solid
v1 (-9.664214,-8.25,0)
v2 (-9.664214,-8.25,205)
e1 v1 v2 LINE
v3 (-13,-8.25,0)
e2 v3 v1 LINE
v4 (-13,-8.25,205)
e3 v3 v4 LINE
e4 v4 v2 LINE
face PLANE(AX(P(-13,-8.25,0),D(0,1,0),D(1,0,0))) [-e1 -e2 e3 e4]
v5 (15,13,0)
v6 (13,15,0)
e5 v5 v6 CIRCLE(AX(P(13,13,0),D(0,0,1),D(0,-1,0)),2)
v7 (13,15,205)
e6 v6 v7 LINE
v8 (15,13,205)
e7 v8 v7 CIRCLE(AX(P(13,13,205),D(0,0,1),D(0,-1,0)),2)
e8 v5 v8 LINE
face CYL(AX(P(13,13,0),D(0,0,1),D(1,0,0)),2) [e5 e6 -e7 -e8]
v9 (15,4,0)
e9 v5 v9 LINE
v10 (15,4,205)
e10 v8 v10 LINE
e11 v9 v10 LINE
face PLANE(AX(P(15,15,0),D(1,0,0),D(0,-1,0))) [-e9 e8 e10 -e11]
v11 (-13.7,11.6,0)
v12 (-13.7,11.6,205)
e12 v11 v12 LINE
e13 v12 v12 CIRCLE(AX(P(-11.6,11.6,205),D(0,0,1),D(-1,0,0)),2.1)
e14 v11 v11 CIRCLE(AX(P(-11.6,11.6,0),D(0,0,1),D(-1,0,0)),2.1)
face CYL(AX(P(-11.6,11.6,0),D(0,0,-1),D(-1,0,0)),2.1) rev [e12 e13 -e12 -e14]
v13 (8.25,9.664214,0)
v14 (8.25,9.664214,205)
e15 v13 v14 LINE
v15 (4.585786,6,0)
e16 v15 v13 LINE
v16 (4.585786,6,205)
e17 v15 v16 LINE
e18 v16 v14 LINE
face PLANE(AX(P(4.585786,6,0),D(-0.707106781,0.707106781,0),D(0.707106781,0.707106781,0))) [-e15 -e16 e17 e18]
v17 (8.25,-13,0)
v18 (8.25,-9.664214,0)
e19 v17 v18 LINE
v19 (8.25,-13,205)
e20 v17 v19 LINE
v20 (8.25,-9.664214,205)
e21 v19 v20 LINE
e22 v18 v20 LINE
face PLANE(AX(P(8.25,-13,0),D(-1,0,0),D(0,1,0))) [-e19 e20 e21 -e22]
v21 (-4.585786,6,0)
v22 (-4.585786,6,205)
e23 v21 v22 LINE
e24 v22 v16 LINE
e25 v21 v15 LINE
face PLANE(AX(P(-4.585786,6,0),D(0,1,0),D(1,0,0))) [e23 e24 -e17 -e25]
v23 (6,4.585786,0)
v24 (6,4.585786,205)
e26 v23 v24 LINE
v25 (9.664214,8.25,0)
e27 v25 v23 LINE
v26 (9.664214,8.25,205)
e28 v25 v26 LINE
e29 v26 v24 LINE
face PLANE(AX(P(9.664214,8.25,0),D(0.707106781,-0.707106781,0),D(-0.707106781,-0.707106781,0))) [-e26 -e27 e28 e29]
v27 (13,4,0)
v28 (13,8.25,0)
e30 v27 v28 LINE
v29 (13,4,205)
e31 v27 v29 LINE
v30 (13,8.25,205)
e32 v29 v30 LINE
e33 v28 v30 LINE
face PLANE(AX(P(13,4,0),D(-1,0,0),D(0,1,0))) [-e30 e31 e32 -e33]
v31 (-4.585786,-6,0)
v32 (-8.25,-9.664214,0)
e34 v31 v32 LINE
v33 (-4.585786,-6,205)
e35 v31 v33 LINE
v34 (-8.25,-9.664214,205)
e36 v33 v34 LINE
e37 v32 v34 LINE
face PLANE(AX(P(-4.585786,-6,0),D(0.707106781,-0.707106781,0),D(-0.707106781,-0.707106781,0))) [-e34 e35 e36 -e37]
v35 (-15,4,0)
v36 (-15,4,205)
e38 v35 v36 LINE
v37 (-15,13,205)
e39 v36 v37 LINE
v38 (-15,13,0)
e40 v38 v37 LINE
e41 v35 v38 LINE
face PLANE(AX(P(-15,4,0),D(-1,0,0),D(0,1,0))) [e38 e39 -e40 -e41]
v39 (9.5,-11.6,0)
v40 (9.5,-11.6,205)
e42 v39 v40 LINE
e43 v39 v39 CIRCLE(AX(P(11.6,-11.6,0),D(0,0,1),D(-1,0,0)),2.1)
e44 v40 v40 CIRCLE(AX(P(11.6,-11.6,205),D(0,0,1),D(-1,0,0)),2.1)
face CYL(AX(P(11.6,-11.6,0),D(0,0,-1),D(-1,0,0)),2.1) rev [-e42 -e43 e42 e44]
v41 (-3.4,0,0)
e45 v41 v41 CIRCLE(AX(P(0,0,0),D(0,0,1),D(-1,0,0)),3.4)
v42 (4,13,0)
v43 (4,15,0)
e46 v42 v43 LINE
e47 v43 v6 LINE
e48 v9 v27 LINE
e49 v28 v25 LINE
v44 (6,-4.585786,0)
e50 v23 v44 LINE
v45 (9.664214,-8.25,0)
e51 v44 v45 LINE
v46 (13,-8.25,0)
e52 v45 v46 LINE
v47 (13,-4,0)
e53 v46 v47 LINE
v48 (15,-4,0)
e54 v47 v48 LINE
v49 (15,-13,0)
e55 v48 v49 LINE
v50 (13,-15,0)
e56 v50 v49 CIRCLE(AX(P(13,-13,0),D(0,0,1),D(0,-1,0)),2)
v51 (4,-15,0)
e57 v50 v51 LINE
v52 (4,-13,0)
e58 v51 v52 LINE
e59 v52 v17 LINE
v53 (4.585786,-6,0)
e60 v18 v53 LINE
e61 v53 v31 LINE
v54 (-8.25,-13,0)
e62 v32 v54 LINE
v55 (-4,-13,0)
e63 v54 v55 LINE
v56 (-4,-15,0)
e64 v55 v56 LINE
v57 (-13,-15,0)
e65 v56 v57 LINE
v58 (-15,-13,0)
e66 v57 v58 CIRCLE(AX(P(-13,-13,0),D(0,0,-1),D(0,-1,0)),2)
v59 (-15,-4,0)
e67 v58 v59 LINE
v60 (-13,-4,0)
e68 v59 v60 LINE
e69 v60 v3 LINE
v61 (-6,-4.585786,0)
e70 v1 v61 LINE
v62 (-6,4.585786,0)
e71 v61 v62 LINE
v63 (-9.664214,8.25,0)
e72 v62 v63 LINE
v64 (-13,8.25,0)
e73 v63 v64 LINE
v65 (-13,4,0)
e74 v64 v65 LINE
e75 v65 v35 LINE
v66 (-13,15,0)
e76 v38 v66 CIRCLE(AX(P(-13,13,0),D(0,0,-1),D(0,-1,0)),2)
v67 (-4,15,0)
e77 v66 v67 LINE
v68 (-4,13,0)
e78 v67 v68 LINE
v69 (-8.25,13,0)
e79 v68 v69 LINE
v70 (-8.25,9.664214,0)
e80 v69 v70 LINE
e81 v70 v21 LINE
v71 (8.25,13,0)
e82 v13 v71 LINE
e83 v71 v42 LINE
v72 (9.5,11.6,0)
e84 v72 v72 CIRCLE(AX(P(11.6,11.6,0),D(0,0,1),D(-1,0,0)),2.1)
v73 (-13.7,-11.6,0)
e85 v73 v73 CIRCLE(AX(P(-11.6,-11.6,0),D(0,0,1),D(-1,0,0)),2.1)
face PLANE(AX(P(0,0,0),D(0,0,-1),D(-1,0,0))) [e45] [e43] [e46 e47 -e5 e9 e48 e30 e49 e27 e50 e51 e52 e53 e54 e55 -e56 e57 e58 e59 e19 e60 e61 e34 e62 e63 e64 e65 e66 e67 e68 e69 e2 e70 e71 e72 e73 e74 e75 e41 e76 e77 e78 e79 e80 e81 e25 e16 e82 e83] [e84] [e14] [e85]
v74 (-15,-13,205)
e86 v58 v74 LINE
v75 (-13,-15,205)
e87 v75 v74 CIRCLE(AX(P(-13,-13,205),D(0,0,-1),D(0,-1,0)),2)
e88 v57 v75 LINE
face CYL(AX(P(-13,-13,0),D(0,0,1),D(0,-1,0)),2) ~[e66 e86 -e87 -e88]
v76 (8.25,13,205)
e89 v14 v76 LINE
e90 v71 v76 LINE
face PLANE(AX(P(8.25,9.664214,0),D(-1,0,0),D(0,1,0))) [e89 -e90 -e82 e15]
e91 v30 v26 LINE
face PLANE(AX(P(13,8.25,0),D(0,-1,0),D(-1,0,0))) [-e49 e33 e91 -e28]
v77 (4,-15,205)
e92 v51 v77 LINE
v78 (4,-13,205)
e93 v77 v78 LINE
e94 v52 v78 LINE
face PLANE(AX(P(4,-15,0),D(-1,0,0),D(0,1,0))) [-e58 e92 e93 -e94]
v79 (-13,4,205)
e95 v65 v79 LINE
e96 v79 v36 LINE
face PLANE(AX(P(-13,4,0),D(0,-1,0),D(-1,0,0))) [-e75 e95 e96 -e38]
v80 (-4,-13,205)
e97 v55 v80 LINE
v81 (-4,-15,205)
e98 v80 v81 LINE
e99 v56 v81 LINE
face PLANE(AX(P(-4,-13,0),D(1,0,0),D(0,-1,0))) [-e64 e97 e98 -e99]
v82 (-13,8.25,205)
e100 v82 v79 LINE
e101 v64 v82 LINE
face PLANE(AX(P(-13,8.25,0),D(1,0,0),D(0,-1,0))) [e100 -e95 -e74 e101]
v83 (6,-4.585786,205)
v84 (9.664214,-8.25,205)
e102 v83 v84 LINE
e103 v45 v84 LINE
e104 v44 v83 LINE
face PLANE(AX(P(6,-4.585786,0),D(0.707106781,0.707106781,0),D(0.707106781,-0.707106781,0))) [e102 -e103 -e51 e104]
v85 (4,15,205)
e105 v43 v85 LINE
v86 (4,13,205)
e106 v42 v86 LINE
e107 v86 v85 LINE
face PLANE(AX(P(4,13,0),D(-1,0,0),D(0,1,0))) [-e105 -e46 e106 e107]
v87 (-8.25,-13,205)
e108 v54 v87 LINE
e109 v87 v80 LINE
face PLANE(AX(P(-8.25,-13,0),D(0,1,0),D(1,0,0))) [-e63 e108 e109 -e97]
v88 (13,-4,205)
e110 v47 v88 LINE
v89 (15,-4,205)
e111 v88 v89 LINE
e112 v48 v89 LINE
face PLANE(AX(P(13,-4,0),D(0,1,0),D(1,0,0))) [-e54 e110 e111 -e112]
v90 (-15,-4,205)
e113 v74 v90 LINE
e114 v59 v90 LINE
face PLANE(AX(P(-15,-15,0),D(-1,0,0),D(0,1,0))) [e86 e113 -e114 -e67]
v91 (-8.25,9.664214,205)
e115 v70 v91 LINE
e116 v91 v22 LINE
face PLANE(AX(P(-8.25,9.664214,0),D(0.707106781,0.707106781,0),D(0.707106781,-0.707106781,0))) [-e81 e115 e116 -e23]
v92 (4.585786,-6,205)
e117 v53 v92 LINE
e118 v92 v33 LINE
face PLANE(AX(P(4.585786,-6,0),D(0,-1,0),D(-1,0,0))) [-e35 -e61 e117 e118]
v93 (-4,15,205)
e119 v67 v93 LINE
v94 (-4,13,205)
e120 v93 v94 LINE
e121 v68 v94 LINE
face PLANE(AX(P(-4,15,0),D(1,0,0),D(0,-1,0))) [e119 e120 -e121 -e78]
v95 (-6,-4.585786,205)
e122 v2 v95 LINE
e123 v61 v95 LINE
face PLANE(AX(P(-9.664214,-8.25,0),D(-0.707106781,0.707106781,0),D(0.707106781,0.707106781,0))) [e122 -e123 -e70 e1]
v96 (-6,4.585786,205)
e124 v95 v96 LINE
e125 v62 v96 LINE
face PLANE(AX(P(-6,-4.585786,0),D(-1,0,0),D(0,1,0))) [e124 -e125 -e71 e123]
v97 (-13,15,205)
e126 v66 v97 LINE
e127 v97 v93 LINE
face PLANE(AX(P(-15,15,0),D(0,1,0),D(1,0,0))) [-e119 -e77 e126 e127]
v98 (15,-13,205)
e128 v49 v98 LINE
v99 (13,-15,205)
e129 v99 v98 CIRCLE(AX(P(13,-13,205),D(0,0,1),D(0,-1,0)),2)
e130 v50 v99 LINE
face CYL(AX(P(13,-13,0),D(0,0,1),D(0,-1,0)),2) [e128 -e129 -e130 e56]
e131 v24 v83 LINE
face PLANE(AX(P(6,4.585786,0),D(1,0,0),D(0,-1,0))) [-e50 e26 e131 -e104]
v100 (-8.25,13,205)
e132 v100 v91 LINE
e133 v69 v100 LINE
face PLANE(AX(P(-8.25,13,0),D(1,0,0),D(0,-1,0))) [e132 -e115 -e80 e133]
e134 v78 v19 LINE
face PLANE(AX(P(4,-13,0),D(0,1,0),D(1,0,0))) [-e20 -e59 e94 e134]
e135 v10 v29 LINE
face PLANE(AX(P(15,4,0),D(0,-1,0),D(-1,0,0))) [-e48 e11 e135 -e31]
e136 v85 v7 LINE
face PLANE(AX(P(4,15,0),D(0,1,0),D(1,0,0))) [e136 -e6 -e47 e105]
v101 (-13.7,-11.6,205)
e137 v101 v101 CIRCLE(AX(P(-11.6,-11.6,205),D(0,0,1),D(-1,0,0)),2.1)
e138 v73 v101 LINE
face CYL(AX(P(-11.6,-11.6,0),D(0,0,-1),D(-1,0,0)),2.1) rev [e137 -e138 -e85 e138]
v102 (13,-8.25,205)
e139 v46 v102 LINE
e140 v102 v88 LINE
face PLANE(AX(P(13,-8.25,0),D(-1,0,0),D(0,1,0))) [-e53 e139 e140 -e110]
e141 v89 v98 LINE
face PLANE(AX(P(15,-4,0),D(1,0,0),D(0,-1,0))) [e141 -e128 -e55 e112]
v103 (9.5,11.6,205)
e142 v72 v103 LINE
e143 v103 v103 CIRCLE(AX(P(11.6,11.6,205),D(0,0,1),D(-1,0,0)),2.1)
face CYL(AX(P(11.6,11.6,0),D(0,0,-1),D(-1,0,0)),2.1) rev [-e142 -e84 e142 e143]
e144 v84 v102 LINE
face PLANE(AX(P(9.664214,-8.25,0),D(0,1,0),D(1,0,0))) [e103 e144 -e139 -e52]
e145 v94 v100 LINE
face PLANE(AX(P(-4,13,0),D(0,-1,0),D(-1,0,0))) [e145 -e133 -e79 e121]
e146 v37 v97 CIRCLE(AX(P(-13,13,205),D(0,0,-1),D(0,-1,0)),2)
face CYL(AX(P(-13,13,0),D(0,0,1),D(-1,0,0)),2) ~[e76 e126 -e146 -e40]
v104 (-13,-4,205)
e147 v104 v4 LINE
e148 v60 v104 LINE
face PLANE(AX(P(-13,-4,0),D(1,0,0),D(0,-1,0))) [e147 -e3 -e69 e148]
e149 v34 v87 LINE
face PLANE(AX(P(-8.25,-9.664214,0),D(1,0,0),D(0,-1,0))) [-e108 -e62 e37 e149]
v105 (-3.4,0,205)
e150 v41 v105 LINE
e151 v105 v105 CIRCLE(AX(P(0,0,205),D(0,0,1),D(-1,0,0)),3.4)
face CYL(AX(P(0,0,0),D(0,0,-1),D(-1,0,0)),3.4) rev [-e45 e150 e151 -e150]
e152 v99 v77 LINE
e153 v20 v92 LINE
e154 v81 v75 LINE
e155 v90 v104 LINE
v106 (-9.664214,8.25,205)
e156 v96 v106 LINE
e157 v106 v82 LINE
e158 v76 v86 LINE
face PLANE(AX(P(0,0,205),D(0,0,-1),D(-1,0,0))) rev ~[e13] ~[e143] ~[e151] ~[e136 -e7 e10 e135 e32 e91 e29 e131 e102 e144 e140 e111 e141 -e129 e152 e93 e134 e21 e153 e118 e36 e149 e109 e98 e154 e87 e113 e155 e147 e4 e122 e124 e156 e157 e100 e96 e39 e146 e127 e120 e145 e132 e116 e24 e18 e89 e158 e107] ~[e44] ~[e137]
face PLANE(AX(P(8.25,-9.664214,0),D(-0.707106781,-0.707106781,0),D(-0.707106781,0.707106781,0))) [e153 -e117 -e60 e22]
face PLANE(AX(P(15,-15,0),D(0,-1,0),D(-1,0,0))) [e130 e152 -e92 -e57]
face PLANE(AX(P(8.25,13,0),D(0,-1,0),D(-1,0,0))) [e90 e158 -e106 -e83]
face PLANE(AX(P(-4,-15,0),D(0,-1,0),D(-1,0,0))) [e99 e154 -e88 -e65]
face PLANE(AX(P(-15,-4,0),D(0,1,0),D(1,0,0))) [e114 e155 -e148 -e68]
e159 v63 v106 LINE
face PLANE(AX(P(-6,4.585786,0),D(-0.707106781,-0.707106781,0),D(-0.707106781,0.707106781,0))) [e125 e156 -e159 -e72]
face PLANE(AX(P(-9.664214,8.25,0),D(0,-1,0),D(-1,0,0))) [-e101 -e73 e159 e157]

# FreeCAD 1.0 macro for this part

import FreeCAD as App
import Part
import Sketcher
from FreeCAD import Vector


def edges_at(feature, points):
    """Names of the edges that pass closest to the given points."""
    edges = feature.Shape.Edges
    near = lambda p: min(range(len(edges)), key=lambda i: edges[i].distToShape(Part.Vertex(*p))[0])
    return sorted({f"Edge{near(p) + 1}" for p in points})

doc = App.newDocument("Part")
body = doc.addObject("PartDesign::Body", "Body")

# Sketch on XY plane
sketch1 = body.newObject("Sketcher::SketchObject", "Sketch")
sketch1.AttachmentSupport = (doc.getObject("XY_Plane"), [""])
sketch1.MapMode = "FlatFace"
sketch1.addGeometry([
    Part.LineSegment(Vector(4, -15, 0), Vector(15, -15, 0)),  # 0
    Part.LineSegment(Vector(15, -15, 0), Vector(15, -4, 0)),  # 1
    Part.LineSegment(Vector(15, -4, 0), Vector(13, -4, 0)),  # 2
    Part.LineSegment(Vector(13, -4, 0), Vector(13, -8.2, 0)),  # 3
    Part.LineSegment(Vector(13, -8.2, 0), Vector(9.7, -8.2, 0)),  # 4
    Part.LineSegment(Vector(9.7, -8.2, 0), Vector(6, -4.6, 0)),  # 5
    Part.LineSegment(Vector(6, -4.6, 0), Vector(6, 4.6, 0)),  # 6
    Part.LineSegment(Vector(6, 4.6, 0), Vector(9.7, 8.2, 0)),  # 7
    Part.LineSegment(Vector(9.7, 8.2, 0), Vector(13, 8.2, 0)),  # 8
    Part.LineSegment(Vector(13, 8.2, 0), Vector(13, 4, 0)),  # 9
    Part.LineSegment(Vector(13, 4, 0), Vector(15, 4, 0)),  # 10
    Part.LineSegment(Vector(15, 4, 0), Vector(15, 15, 0)),  # 11
    Part.LineSegment(Vector(15, 15, 0), Vector(4, 15, 0)),  # 12
    Part.LineSegment(Vector(4, 15, 0), Vector(4, 13, 0)),  # 13
    Part.LineSegment(Vector(4, 13, 0), Vector(8.2, 13, 0)),  # 14
    Part.LineSegment(Vector(8.2, 13, 0), Vector(8.2, 9.7, 0)),  # 15
    Part.LineSegment(Vector(8.2, 9.7, 0), Vector(4.6, 6, 0)),  # 16
    Part.LineSegment(Vector(4.6, 6, 0), Vector(-4.6, 6, 0)),  # 17
    Part.LineSegment(Vector(-4.6, 6, 0), Vector(-8.2, 9.7, 0)),  # 18
    Part.LineSegment(Vector(-8.2, 9.7, 0), Vector(-8.2, 13, 0)),  # 19
    Part.LineSegment(Vector(-8.2, 13, 0), Vector(-4, 13, 0)),  # 20
    Part.LineSegment(Vector(-4, 13, 0), Vector(-4, 15, 0)),  # 21
    Part.LineSegment(Vector(-4, 15, 0), Vector(-15, 15, 0)),  # 22
    Part.LineSegment(Vector(-15, 15, 0), Vector(-15, 4, 0)),  # 23
    Part.LineSegment(Vector(-15, 4, 0), Vector(-13, 4, 0)),  # 24
    Part.LineSegment(Vector(-13, 4, 0), Vector(-13, 8.2, 0)),  # 25
    Part.LineSegment(Vector(-13, 8.2, 0), Vector(-9.7, 8.2, 0)),  # 26
    Part.LineSegment(Vector(-9.7, 8.2, 0), Vector(-6, 4.6, 0)),  # 27
    Part.LineSegment(Vector(-6, 4.6, 0), Vector(-6, -4.6, 0)),  # 28
    Part.LineSegment(Vector(-6, -4.6, 0), Vector(-9.7, -8.2, 0)),  # 29
    Part.LineSegment(Vector(-9.7, -8.2, 0), Vector(-13, -8.2, 0)),  # 30
    Part.LineSegment(Vector(-13, -8.2, 0), Vector(-13, -4, 0)),  # 31
    Part.LineSegment(Vector(-13, -4, 0), Vector(-15, -4, 0)),  # 32
    Part.LineSegment(Vector(-15, -4, 0), Vector(-15, -15, 0)),  # 33
    Part.LineSegment(Vector(-15, -15, 0), Vector(-4, -15, 0)),  # 34
    Part.LineSegment(Vector(-4, -15, 0), Vector(-4, -13, 0)),  # 35
    Part.LineSegment(Vector(-4, -13, 0), Vector(-8.2, -13, 0)),  # 36
    Part.LineSegment(Vector(-8.2, -13, 0), Vector(-8.2, -9.7, 0)),  # 37
    Part.LineSegment(Vector(-8.2, -9.7, 0), Vector(-4.6, -6, 0)),  # 38
    Part.LineSegment(Vector(-4.6, -6, 0), Vector(4.6, -6, 0)),  # 39
    Part.LineSegment(Vector(4.6, -6, 0), Vector(8.2, -9.7, 0)),  # 40
    Part.LineSegment(Vector(8.2, -9.7, 0), Vector(8.2, -13, 0)),  # 41
    Part.LineSegment(Vector(8.2, -13, 0), Vector(4, -13, 0)),  # 42
    Part.LineSegment(Vector(4, -13, 0), Vector(4, -15, 0)),  # 43
    Part.Circle(Vector(11.6, -11.6, 0), Vector(0, 0, 1), 2.1),  # 44
    Part.Circle(Vector(-11.6, -11.6, 0), Vector(0, 0, 1), 2.1),  # 45
    Part.Circle(Vector(11.6, 11.6, 0), Vector(0, 0, 1), 2.1),  # 46
    Part.Circle(Vector(0, 0, 0), Vector(0, 0, 1), 3.4),  # 47
    Part.Circle(Vector(-11.6, 11.6, 0), Vector(0, 0, 1), 2.1),  # 48
], False)
sketch1.addConstraint([
    Sketcher.Constraint("Coincident", 0, 2, 1, 1),
    Sketcher.Constraint("Coincident", 1, 2, 2, 1),
    Sketcher.Constraint("Coincident", 2, 2, 3, 1),
    Sketcher.Constraint("Coincident", 3, 2, 4, 1),
    Sketcher.Constraint("Coincident", 4, 2, 5, 1),
    Sketcher.Constraint("Coincident", 5, 2, 6, 1),
    Sketcher.Constraint("Coincident", 6, 2, 7, 1),
    Sketcher.Constraint("Coincident", 7, 2, 8, 1),
    Sketcher.Constraint("Coincident", 8, 2, 9, 1),
    Sketcher.Constraint("Coincident", 9, 2, 10, 1),
    Sketcher.Constraint("Coincident", 10, 2, 11, 1),
    Sketcher.Constraint("Coincident", 11, 2, 12, 1),
    Sketcher.Constraint("Coincident", 12, 2, 13, 1),
    Sketcher.Constraint("Coincident", 13, 2, 14, 1),
    Sketcher.Constraint("Coincident", 14, 2, 15, 1),
    Sketcher.Constraint("Coincident", 15, 2, 16, 1),
    Sketcher.Constraint("Coincident", 16, 2, 17, 1),
    Sketcher.Constraint("Coincident", 17, 2, 18, 1),
    Sketcher.Constraint("Coincident", 18, 2, 19, 1),
    Sketcher.Constraint("Coincident", 19, 2, 20, 1),
    Sketcher.Constraint("Coincident", 20, 2, 21, 1),
    Sketcher.Constraint("Coincident", 21, 2, 22, 1),
    Sketcher.Constraint("Coincident", 22, 2, 23, 1),
    Sketcher.Constraint("Coincident", 23, 2, 24, 1),
    Sketcher.Constraint("Coincident", 24, 2, 25, 1),
    Sketcher.Constraint("Coincident", 25, 2, 26, 1),
    Sketcher.Constraint("Coincident", 26, 2, 27, 1),
    Sketcher.Constraint("Coincident", 27, 2, 28, 1),
    Sketcher.Constraint("Coincident", 28, 2, 29, 1),
    Sketcher.Constraint("Coincident", 29, 2, 30, 1),
    Sketcher.Constraint("Coincident", 30, 2, 31, 1),
    Sketcher.Constraint("Coincident", 31, 2, 32, 1),
    Sketcher.Constraint("Coincident", 32, 2, 33, 1),
    Sketcher.Constraint("Coincident", 33, 2, 34, 1),
    Sketcher.Constraint("Coincident", 34, 2, 35, 1),
    Sketcher.Constraint("Coincident", 35, 2, 36, 1),
    Sketcher.Constraint("Coincident", 36, 2, 37, 1),
    Sketcher.Constraint("Coincident", 37, 2, 38, 1),
    Sketcher.Constraint("Coincident", 38, 2, 39, 1),
    Sketcher.Constraint("Coincident", 39, 2, 40, 1),
    Sketcher.Constraint("Coincident", 40, 2, 41, 1),
    Sketcher.Constraint("Coincident", 41, 2, 42, 1),
    Sketcher.Constraint("Coincident", 42, 2, 43, 1),
    Sketcher.Constraint("Coincident", 43, 2, 0, 1),
    Sketcher.Constraint("Horizontal", 0),
    Sketcher.Constraint("Vertical", 1),
    Sketcher.Constraint("Horizontal", 2),
    Sketcher.Constraint("Vertical", 3),
    Sketcher.Constraint("Horizontal", 4),
    Sketcher.Constraint("Vertical", 6),
    Sketcher.Constraint("Horizontal", 8),
    Sketcher.Constraint("Vertical", 9),
    Sketcher.Constraint("Horizontal", 10),
    Sketcher.Constraint("Vertical", 11),
    Sketcher.Constraint("Horizontal", 12),
    Sketcher.Constraint("Vertical", 13),
    Sketcher.Constraint("Horizontal", 14),
    Sketcher.Constraint("Vertical", 15),
    Sketcher.Constraint("Horizontal", 17),
    Sketcher.Constraint("Vertical", 19),
    Sketcher.Constraint("Horizontal", 20),
    Sketcher.Constraint("Vertical", 21),
    Sketcher.Constraint("Horizontal", 22),
    Sketcher.Constraint("Vertical", 23),
    Sketcher.Constraint("Horizontal", 24),
    Sketcher.Constraint("Vertical", 25),
    Sketcher.Constraint("Horizontal", 26),
    Sketcher.Constraint("Vertical", 28),
    Sketcher.Constraint("Horizontal", 30),
    Sketcher.Constraint("Vertical", 31),
    Sketcher.Constraint("Horizontal", 32),
    Sketcher.Constraint("Vertical", 33),
    Sketcher.Constraint("Horizontal", 34),
    Sketcher.Constraint("Vertical", 35),
    Sketcher.Constraint("Horizontal", 36),
    Sketcher.Constraint("Vertical", 37),
    Sketcher.Constraint("Horizontal", 39),
    Sketcher.Constraint("Vertical", 41),
    Sketcher.Constraint("Horizontal", 42),
    Sketcher.Constraint("Vertical", 43),
    Sketcher.Constraint("Coincident", 47, 3, -1, 1),
    Sketcher.Constraint("Equal", 44, 45),
    Sketcher.Constraint("Equal", 45, 46),
    Sketcher.Constraint("Equal", 46, 48),
    Sketcher.Constraint("Symmetric", 45, 3, 46, 3, -1, 1),
    Sketcher.Constraint("Symmetric", 44, 3, 48, 3, -1, 1),
    Sketcher.Constraint("Symmetric", 0, 2, 22, 2, -1, 1),
    Sketcher.Constraint("Symmetric", 2, 2, 24, 2, -1, 1),
    Sketcher.Constraint("Symmetric", 4, 2, 26, 2, -1, 1),
    Sketcher.Constraint("Symmetric", 5, 2, 27, 2, -1, 1),
    Sketcher.Constraint("Symmetric", 7, 2, 29, 2, -1, 1),
    Sketcher.Constraint("Symmetric", 9, 2, 31, 2, -1, 1),
    Sketcher.Constraint("Symmetric", 11, 2, 33, 2, -1, 1),
    Sketcher.Constraint("Symmetric", 13, 2, 35, 2, -1, 1),
    Sketcher.Constraint("Symmetric", 15, 2, 37, 2, -1, 1),
    Sketcher.Constraint("Symmetric", 16, 2, 38, 2, -1, 1),
    Sketcher.Constraint("Symmetric", 18, 2, 40, 2, -1, 1),
    Sketcher.Constraint("Symmetric", 20, 2, 42, 2, -1, 1),
    Sketcher.Constraint("Symmetric", 44, 3, 45, 3, -2),
    Sketcher.Constraint("Symmetric", 15, 2, 18, 2, -2),
    Sketcher.Constraint("Symmetric", 13, 2, 20, 2, -2),
    Sketcher.Constraint("Symmetric", 11, 2, 22, 2, -2),
    Sketcher.Constraint("Symmetric", 9, 2, 24, 2, -2),
    Sketcher.Constraint("Symmetric", 7, 2, 26, 2, -2),
    Sketcher.Constraint("Perpendicular", 5, 7),
    Sketcher.Constraint("Parallel", 7, 16),
    Sketcher.Constraint("Perpendicular", 16, 18),
    Sketcher.Constraint("Perpendicular", 27, 29),
    Sketcher.Constraint("Perpendicular", 38, 40),
    Sketcher.Constraint("Horizontal", 6, 2, 27, 2),
    Sketcher.Constraint("Equal", 34, 1),
    Sketcher.Constraint("Equal", 42, 3),
    Sketcher.Constraint("Equal", 39, 6),
    Sketcher.Constraint("Equal", 32, 13),
    Sketcher.Constraint("Equal", 30, 15),
    Sketcher.Constraint("Equal", 7, 16),
    Sketcher.Constraint("Diameter", 44, 4.2),
    Sketcher.Constraint("Diameter", 47, 6.8),
    Sketcher.Constraint("DistanceX", 0, 1, 0, 2, 11.0),
    Sketcher.Constraint("DistanceX", 2, 2, 2, 1, 2.0),
    Sketcher.Constraint("DistanceX", -1, 1, 0, 2, 15.0),
    Sketcher.Constraint("DistanceX", -1, 1, 5, 2, 6.0),
    Sketcher.Constraint("DistanceX", 14, 1, 14, 2, 4.25),
    Sketcher.Constraint("DistanceX", -1, 1, 44, 3, 11.6),
    Sketcher.Constraint("DistanceY", 44, 3, -1, 1, 11.6),
    Sketcher.Constraint("Distance", 5, 5.181981),
])
pad1 = body.newObject("PartDesign::Pad", "Pad")
pad1.Profile = sketch1
pad1.Length = 205
doc.recompute()

fillet = body.newObject("PartDesign::Fillet", "Fillet")
fillet.Base = (pad1, edges_at(pad1, [
    (-15, -15, 102.5),
    (-15, 15, 102.5),
    (15, 15, 102.5),
    (15, -15, 102.5),
]))
fillet.Radius = 2

doc.recompute()
